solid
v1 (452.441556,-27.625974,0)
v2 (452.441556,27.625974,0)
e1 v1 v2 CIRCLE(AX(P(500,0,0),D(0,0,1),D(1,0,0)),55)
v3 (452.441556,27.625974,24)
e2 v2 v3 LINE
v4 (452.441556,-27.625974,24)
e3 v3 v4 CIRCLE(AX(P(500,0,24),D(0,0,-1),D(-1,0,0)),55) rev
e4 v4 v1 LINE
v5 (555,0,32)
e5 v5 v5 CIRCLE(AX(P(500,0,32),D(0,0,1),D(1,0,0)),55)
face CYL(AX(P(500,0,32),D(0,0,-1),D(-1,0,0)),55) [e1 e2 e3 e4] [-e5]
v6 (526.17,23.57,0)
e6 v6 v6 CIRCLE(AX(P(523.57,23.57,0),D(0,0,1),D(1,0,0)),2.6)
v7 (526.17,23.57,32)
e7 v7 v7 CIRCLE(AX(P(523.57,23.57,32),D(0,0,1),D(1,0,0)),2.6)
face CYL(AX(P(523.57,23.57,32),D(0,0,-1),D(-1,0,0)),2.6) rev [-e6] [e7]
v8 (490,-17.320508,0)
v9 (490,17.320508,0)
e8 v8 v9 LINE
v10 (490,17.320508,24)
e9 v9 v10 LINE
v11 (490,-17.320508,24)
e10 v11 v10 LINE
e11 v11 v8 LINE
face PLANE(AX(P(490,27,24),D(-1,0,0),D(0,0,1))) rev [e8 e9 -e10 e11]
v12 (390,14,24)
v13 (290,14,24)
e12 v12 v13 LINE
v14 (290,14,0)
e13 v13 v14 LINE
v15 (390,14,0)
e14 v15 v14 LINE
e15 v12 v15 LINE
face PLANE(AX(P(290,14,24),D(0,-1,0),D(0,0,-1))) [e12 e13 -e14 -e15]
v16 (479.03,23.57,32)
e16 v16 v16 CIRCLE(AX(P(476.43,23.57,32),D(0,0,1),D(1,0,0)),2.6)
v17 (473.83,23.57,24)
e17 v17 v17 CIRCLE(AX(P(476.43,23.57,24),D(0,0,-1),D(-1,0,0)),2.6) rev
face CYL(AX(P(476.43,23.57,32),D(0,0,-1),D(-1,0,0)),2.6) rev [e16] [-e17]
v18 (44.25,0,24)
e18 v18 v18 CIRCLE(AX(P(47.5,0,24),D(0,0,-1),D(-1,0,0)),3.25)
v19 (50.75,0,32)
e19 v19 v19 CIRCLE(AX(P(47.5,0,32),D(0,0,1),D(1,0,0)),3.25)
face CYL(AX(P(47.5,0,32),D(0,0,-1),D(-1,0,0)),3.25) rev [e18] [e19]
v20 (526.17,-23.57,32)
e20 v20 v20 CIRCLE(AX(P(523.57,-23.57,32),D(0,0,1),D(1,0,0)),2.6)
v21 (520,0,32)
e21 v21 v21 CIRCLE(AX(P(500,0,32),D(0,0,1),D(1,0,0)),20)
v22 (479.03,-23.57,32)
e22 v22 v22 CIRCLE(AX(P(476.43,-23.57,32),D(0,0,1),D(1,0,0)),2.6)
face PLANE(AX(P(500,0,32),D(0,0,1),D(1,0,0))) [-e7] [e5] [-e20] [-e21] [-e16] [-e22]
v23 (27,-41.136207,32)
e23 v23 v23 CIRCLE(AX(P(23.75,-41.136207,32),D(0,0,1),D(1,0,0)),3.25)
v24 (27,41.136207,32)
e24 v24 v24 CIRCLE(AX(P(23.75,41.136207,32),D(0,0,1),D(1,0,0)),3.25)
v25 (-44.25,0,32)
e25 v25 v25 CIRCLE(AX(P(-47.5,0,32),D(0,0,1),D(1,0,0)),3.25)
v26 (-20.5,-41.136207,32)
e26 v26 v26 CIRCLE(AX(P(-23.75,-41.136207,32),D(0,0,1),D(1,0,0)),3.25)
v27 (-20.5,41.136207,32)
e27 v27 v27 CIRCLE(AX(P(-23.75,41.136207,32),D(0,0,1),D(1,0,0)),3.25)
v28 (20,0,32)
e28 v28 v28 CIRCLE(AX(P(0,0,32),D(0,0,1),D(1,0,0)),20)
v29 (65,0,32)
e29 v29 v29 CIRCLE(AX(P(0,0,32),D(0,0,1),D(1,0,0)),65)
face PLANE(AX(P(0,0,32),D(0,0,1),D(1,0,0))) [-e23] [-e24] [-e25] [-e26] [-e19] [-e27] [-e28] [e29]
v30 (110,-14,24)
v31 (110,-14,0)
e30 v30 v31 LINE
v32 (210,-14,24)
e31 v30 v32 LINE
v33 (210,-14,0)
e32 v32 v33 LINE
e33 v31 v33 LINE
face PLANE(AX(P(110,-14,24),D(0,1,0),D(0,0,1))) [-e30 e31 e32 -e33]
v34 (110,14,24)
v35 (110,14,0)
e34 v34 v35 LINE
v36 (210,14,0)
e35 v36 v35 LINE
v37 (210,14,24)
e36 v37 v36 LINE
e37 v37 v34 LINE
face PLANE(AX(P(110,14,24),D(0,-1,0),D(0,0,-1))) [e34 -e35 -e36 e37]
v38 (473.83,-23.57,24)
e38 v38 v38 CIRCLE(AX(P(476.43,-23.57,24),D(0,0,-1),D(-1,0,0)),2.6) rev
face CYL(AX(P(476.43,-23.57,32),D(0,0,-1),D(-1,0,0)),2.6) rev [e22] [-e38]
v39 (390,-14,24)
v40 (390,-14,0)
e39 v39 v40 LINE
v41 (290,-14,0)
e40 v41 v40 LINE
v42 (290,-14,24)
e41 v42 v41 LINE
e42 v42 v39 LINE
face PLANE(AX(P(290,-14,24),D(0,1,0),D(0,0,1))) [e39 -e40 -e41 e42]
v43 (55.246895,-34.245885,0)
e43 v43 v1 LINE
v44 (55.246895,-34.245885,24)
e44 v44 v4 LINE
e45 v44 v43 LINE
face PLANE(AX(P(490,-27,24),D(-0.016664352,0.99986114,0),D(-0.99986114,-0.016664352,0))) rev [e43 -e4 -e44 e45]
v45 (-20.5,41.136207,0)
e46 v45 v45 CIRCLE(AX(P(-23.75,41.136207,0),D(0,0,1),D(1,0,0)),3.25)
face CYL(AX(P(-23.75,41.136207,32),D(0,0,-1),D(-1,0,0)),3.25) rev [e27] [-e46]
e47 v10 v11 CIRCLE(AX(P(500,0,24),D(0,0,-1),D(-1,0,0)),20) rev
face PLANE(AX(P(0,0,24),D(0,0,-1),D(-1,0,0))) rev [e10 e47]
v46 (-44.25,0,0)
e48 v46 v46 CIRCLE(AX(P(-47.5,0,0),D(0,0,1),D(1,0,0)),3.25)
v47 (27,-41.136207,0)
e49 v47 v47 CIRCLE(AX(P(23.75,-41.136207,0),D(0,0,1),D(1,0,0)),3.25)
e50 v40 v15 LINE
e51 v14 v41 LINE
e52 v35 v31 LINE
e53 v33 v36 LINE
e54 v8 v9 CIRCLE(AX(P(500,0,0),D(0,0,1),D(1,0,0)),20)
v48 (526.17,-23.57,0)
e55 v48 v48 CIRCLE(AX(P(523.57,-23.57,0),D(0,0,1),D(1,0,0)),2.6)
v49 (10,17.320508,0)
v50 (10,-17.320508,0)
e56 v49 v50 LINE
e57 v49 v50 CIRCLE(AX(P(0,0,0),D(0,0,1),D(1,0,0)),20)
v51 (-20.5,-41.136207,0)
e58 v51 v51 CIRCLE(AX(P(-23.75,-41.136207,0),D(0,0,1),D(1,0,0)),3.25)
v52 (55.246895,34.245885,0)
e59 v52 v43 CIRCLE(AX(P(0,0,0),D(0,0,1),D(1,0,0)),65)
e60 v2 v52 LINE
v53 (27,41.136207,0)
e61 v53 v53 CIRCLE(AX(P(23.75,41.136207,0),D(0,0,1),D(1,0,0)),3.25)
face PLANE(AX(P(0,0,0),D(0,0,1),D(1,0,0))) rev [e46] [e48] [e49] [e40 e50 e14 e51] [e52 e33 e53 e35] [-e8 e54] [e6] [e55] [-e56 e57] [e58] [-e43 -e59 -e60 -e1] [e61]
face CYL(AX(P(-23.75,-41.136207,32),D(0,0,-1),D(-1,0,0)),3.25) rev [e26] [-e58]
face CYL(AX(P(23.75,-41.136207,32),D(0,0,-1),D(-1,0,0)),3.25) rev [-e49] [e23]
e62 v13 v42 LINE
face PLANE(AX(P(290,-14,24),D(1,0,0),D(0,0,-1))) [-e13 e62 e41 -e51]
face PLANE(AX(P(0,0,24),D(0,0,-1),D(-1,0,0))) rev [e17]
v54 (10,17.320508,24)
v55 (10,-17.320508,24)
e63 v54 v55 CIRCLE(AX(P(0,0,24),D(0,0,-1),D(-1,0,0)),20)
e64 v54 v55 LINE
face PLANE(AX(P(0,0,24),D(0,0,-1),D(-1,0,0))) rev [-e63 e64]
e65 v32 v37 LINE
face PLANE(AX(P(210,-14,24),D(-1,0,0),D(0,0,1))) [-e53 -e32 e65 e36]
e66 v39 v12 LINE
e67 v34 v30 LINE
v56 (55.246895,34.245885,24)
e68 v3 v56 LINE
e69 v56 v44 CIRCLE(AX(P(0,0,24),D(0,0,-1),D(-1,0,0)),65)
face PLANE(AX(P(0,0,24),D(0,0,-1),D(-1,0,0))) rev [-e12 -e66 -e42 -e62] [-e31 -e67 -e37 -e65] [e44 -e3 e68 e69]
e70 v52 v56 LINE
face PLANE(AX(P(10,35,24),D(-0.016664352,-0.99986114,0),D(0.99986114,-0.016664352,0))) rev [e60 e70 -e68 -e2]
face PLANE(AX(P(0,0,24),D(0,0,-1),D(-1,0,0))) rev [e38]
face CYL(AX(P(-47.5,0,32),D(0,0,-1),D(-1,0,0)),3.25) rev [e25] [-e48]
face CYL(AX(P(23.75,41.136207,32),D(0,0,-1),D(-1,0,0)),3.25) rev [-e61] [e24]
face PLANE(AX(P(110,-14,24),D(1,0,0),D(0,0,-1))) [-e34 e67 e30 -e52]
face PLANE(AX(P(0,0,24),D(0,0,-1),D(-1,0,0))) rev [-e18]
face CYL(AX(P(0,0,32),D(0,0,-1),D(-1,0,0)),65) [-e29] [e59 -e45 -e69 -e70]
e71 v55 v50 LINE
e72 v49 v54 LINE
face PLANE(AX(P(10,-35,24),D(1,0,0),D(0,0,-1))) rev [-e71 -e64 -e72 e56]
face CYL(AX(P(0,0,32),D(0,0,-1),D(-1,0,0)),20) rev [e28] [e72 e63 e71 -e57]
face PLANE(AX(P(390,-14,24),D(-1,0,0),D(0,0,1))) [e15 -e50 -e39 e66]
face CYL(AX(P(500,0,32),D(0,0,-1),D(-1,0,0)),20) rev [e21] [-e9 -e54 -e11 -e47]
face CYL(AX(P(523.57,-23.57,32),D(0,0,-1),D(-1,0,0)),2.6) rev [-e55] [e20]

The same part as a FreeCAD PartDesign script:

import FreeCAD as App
import Part
import Sketcher

V = App.Vector


def add_polygon(sketch, points):
    """Adds a closed chain of lines whose ends are joined by coincident constraints."""
    first, n = sketch.GeometryCount, len(points)
    for a, b in zip(points, points[1:] + points[:1]):
        sketch.addGeometry(Part.LineSegment(App.Vector(*a, 0), App.Vector(*b, 0)), False)
    for i in range(n):
        sketch.addConstraint(Sketcher.Constraint("Coincident", first + i, 2, first + (i + 1) % n, 1))

doc = App.newDocument("Part")
body = doc.addObject("PartDesign::Body", "Body")

# Sketch on XY plane
sketch1 = body.newObject("Sketcher::SketchObject", "Sketch")
sketch1.AttachmentSupport = (doc.getObject("XY_Plane"), [""])
sketch1.MapMode = "FlatFace"
sketch1.addGeometry([
    Part.Circle(V(0, 0, 0), V(0, 0, 1), 65),  # 0
    Part.Circle(V(-23.8, -41.1, 0), V(0, 0, 1), 3.2),  # 1
    Part.Circle(V(23.8, -41.1, 0), V(0, 0, 1), 3.2),  # 2
    Part.Circle(V(-47.5, 0, 0), V(0, 0, 1), 3.2),  # 3
    Part.Circle(V(-23.8, 41.1, 0), V(0, 0, 1), 3.2),  # 4
    Part.Circle(V(0, 0, 0), V(0, 0, 1), 20),  # 5
    Part.Circle(V(47.5, 0, 0), V(0, 0, 1), 3.2),  # 6
    Part.Circle(V(23.8, 41.1, 0), V(0, 0, 1), 3.2),  # 7
], False)
sketch1.addConstraint([
    Sketcher.Constraint("Coincident", 0, 3, -1, 1),
    Sketcher.Constraint("Coincident", 5, 3, -1, 1),
    Sketcher.Constraint("Equal", 1, 2),
    Sketcher.Constraint("Equal", 2, 3),
    Sketcher.Constraint("Equal", 3, 4),
    Sketcher.Constraint("Equal", 4, 6),
    Sketcher.Constraint("Equal", 6, 7),
    Sketcher.Constraint("Symmetric", 2, 3, 4, 3, -1, 1),
    Sketcher.Constraint("Symmetric", 3, 3, 6, 3, -1, 1),
    Sketcher.Constraint("Symmetric", 1, 3, 7, 3, -1, 1),
    Sketcher.Constraint("Symmetric", 1, 3, 2, 3, -2),
    Sketcher.Constraint("PointOnObject", 3, 3, -1),
    Sketcher.Constraint("Diameter", 0, 130.0),
    Sketcher.Constraint("Diameter", 5, 40.0),
    Sketcher.Constraint("Diameter", 1, 6.5),
    Sketcher.Constraint("DistanceX", 3, 3, -1, 1, 47.5),
    Sketcher.Constraint("DistanceX", 1, 3, 2, 3, 47.5),
    Sketcher.Constraint("DistanceY", 1, 3, -1, 1, 41.136207),
])
pad1 = body.newObject("PartDesign::Pad", "Pad")
pad1.Profile = sketch1
pad1.Length = 32
body2 = doc.addObject("PartDesign::Body", "Body001")

# Sketch on XY plane
sketch2 = body2.newObject("Sketcher::SketchObject", "Sketch001")
sketch2.AttachmentSupport = (doc.getObject("XY_Plane001"), [""])
sketch2.MapMode = "FlatFace"
sketch2.addGeometry([
    Part.Circle(V(500, 0, 0), V(0, 0, 1), 55),  # 0
    Part.Circle(V(476.4, -23.6, 0), V(0, 0, 1), 2.6),  # 1
    Part.Circle(V(500, 0, 0), V(0, 0, 1), 20),  # 2
    Part.Circle(V(523.6, -23.6, 0), V(0, 0, 1), 2.6),  # 3
    Part.Circle(V(476.4, 23.6, 0), V(0, 0, 1), 2.6),  # 4
    Part.Circle(V(523.6, 23.6, 0), V(0, 0, 1), 2.6),  # 5
], False)
sketch2.addConstraint([
    Sketcher.Constraint("Coincident", 2, 3, 0, 3),
    Sketcher.Constraint("Equal", 1, 3),
    Sketcher.Constraint("Equal", 3, 4),
    Sketcher.Constraint("Equal", 4, 5),
    Sketcher.Constraint("Symmetric", 1, 3, 4, 3, -1),
    Sketcher.Constraint("Symmetric", 3, 3, 5, 3, -1),
    Sketcher.Constraint("PointOnObject", 0, 3, -1),
    Sketcher.Constraint("Horizontal", 1, 3, 3, 3),
    Sketcher.Constraint("Diameter", 0, 110.0),
    Sketcher.Constraint("Diameter", 2, 40.0),
    Sketcher.Constraint("Diameter", 1, 5.2),
    Sketcher.Constraint("DistanceX", -1, 1, 0, 3, 500.0),
    Sketcher.Constraint("DistanceX", -1, 1, 1, 3, 476.43),
    Sketcher.Constraint("DistanceY", 1, 3, -1, 1, 23.57),
    Sketcher.Constraint("DistanceX", -1, 1, 3, 3, 523.57),
])
pad2 = body2.newObject("PartDesign::Pad", "Pad001")
pad2.Profile = sketch2
pad2.Length = 32
body.AllowCompound = True
doc.recompute()

boolean = body.newObject("PartDesign::Boolean", "Boolean")
boolean.Type = "Fuse"
boolean.addObjects([body2])

# Sketch on XY plane
sketch3 = body.newObject("Sketcher::SketchObject", "Sketch002")
sketch3.AttachmentSupport = (doc.getObject("XY_Plane"), [""])
sketch3.MapMode = "FlatFace"
add_polygon(sketch3, [(10, 35), (10, -35), (490, -27), (490, 27)])  # lines 0-3
add_polygon(sketch3, [(290, -14), (290, 14), (390, 14), (390, -14)])  # lines 4-7
add_polygon(sketch3, [(110, -14), (110, 14), (210, 14), (210, -14)])  # lines 8-11
sketch3.addConstraint([
    Sketcher.Constraint("Vertical", 0),
    Sketcher.Constraint("Vertical", 2),
    Sketcher.Constraint("Vertical", 4),
    Sketcher.Constraint("Horizontal", 5),
    Sketcher.Constraint("Vertical", 6),
    Sketcher.Constraint("Horizontal", 7),
    Sketcher.Constraint("Vertical", 8),
    Sketcher.Constraint("Horizontal", 9),
    Sketcher.Constraint("Vertical", 10),
    Sketcher.Constraint("Horizontal", 11),
    Sketcher.Constraint("Horizontal", 5, 2, 8, 2),
    Sketcher.Constraint("Horizontal", 7, 2, 10, 2),
    Sketcher.Constraint("Equal", 7, 9),
    Sketcher.Constraint("Equal", 1, 3),
    Sketcher.Constraint("DistanceX", 5, 1, 5, 2, 100.0),
    Sketcher.Constraint("DistanceY", 0, 2, 0, 1, 70.0),
    Sketcher.Constraint("DistanceY", 2, 1, 2, 2, 54.0),
    Sketcher.Constraint("DistanceY", 4, 1, 4, 2, 28.0),
    Sketcher.Constraint("DistanceX", -1, 1, 0, 2, 10.0),
    Sketcher.Constraint("DistanceY", 0, 2, -1, 1, 35.0),
    Sketcher.Constraint("DistanceX", -1, 1, 1, 2, 490.0),
    Sketcher.Constraint("DistanceX", -1, 1, 4, 2, 290.0),
    Sketcher.Constraint("DistanceY", -1, 1, 4, 2, 14.0),
    Sketcher.Constraint("DistanceX", -1, 1, 8, 2, 110.0),
])
pad3 = body.newObject("PartDesign::Pad", "Pad002")
pad3.Profile = sketch3
pad3.Length = 24

doc.recompute()
